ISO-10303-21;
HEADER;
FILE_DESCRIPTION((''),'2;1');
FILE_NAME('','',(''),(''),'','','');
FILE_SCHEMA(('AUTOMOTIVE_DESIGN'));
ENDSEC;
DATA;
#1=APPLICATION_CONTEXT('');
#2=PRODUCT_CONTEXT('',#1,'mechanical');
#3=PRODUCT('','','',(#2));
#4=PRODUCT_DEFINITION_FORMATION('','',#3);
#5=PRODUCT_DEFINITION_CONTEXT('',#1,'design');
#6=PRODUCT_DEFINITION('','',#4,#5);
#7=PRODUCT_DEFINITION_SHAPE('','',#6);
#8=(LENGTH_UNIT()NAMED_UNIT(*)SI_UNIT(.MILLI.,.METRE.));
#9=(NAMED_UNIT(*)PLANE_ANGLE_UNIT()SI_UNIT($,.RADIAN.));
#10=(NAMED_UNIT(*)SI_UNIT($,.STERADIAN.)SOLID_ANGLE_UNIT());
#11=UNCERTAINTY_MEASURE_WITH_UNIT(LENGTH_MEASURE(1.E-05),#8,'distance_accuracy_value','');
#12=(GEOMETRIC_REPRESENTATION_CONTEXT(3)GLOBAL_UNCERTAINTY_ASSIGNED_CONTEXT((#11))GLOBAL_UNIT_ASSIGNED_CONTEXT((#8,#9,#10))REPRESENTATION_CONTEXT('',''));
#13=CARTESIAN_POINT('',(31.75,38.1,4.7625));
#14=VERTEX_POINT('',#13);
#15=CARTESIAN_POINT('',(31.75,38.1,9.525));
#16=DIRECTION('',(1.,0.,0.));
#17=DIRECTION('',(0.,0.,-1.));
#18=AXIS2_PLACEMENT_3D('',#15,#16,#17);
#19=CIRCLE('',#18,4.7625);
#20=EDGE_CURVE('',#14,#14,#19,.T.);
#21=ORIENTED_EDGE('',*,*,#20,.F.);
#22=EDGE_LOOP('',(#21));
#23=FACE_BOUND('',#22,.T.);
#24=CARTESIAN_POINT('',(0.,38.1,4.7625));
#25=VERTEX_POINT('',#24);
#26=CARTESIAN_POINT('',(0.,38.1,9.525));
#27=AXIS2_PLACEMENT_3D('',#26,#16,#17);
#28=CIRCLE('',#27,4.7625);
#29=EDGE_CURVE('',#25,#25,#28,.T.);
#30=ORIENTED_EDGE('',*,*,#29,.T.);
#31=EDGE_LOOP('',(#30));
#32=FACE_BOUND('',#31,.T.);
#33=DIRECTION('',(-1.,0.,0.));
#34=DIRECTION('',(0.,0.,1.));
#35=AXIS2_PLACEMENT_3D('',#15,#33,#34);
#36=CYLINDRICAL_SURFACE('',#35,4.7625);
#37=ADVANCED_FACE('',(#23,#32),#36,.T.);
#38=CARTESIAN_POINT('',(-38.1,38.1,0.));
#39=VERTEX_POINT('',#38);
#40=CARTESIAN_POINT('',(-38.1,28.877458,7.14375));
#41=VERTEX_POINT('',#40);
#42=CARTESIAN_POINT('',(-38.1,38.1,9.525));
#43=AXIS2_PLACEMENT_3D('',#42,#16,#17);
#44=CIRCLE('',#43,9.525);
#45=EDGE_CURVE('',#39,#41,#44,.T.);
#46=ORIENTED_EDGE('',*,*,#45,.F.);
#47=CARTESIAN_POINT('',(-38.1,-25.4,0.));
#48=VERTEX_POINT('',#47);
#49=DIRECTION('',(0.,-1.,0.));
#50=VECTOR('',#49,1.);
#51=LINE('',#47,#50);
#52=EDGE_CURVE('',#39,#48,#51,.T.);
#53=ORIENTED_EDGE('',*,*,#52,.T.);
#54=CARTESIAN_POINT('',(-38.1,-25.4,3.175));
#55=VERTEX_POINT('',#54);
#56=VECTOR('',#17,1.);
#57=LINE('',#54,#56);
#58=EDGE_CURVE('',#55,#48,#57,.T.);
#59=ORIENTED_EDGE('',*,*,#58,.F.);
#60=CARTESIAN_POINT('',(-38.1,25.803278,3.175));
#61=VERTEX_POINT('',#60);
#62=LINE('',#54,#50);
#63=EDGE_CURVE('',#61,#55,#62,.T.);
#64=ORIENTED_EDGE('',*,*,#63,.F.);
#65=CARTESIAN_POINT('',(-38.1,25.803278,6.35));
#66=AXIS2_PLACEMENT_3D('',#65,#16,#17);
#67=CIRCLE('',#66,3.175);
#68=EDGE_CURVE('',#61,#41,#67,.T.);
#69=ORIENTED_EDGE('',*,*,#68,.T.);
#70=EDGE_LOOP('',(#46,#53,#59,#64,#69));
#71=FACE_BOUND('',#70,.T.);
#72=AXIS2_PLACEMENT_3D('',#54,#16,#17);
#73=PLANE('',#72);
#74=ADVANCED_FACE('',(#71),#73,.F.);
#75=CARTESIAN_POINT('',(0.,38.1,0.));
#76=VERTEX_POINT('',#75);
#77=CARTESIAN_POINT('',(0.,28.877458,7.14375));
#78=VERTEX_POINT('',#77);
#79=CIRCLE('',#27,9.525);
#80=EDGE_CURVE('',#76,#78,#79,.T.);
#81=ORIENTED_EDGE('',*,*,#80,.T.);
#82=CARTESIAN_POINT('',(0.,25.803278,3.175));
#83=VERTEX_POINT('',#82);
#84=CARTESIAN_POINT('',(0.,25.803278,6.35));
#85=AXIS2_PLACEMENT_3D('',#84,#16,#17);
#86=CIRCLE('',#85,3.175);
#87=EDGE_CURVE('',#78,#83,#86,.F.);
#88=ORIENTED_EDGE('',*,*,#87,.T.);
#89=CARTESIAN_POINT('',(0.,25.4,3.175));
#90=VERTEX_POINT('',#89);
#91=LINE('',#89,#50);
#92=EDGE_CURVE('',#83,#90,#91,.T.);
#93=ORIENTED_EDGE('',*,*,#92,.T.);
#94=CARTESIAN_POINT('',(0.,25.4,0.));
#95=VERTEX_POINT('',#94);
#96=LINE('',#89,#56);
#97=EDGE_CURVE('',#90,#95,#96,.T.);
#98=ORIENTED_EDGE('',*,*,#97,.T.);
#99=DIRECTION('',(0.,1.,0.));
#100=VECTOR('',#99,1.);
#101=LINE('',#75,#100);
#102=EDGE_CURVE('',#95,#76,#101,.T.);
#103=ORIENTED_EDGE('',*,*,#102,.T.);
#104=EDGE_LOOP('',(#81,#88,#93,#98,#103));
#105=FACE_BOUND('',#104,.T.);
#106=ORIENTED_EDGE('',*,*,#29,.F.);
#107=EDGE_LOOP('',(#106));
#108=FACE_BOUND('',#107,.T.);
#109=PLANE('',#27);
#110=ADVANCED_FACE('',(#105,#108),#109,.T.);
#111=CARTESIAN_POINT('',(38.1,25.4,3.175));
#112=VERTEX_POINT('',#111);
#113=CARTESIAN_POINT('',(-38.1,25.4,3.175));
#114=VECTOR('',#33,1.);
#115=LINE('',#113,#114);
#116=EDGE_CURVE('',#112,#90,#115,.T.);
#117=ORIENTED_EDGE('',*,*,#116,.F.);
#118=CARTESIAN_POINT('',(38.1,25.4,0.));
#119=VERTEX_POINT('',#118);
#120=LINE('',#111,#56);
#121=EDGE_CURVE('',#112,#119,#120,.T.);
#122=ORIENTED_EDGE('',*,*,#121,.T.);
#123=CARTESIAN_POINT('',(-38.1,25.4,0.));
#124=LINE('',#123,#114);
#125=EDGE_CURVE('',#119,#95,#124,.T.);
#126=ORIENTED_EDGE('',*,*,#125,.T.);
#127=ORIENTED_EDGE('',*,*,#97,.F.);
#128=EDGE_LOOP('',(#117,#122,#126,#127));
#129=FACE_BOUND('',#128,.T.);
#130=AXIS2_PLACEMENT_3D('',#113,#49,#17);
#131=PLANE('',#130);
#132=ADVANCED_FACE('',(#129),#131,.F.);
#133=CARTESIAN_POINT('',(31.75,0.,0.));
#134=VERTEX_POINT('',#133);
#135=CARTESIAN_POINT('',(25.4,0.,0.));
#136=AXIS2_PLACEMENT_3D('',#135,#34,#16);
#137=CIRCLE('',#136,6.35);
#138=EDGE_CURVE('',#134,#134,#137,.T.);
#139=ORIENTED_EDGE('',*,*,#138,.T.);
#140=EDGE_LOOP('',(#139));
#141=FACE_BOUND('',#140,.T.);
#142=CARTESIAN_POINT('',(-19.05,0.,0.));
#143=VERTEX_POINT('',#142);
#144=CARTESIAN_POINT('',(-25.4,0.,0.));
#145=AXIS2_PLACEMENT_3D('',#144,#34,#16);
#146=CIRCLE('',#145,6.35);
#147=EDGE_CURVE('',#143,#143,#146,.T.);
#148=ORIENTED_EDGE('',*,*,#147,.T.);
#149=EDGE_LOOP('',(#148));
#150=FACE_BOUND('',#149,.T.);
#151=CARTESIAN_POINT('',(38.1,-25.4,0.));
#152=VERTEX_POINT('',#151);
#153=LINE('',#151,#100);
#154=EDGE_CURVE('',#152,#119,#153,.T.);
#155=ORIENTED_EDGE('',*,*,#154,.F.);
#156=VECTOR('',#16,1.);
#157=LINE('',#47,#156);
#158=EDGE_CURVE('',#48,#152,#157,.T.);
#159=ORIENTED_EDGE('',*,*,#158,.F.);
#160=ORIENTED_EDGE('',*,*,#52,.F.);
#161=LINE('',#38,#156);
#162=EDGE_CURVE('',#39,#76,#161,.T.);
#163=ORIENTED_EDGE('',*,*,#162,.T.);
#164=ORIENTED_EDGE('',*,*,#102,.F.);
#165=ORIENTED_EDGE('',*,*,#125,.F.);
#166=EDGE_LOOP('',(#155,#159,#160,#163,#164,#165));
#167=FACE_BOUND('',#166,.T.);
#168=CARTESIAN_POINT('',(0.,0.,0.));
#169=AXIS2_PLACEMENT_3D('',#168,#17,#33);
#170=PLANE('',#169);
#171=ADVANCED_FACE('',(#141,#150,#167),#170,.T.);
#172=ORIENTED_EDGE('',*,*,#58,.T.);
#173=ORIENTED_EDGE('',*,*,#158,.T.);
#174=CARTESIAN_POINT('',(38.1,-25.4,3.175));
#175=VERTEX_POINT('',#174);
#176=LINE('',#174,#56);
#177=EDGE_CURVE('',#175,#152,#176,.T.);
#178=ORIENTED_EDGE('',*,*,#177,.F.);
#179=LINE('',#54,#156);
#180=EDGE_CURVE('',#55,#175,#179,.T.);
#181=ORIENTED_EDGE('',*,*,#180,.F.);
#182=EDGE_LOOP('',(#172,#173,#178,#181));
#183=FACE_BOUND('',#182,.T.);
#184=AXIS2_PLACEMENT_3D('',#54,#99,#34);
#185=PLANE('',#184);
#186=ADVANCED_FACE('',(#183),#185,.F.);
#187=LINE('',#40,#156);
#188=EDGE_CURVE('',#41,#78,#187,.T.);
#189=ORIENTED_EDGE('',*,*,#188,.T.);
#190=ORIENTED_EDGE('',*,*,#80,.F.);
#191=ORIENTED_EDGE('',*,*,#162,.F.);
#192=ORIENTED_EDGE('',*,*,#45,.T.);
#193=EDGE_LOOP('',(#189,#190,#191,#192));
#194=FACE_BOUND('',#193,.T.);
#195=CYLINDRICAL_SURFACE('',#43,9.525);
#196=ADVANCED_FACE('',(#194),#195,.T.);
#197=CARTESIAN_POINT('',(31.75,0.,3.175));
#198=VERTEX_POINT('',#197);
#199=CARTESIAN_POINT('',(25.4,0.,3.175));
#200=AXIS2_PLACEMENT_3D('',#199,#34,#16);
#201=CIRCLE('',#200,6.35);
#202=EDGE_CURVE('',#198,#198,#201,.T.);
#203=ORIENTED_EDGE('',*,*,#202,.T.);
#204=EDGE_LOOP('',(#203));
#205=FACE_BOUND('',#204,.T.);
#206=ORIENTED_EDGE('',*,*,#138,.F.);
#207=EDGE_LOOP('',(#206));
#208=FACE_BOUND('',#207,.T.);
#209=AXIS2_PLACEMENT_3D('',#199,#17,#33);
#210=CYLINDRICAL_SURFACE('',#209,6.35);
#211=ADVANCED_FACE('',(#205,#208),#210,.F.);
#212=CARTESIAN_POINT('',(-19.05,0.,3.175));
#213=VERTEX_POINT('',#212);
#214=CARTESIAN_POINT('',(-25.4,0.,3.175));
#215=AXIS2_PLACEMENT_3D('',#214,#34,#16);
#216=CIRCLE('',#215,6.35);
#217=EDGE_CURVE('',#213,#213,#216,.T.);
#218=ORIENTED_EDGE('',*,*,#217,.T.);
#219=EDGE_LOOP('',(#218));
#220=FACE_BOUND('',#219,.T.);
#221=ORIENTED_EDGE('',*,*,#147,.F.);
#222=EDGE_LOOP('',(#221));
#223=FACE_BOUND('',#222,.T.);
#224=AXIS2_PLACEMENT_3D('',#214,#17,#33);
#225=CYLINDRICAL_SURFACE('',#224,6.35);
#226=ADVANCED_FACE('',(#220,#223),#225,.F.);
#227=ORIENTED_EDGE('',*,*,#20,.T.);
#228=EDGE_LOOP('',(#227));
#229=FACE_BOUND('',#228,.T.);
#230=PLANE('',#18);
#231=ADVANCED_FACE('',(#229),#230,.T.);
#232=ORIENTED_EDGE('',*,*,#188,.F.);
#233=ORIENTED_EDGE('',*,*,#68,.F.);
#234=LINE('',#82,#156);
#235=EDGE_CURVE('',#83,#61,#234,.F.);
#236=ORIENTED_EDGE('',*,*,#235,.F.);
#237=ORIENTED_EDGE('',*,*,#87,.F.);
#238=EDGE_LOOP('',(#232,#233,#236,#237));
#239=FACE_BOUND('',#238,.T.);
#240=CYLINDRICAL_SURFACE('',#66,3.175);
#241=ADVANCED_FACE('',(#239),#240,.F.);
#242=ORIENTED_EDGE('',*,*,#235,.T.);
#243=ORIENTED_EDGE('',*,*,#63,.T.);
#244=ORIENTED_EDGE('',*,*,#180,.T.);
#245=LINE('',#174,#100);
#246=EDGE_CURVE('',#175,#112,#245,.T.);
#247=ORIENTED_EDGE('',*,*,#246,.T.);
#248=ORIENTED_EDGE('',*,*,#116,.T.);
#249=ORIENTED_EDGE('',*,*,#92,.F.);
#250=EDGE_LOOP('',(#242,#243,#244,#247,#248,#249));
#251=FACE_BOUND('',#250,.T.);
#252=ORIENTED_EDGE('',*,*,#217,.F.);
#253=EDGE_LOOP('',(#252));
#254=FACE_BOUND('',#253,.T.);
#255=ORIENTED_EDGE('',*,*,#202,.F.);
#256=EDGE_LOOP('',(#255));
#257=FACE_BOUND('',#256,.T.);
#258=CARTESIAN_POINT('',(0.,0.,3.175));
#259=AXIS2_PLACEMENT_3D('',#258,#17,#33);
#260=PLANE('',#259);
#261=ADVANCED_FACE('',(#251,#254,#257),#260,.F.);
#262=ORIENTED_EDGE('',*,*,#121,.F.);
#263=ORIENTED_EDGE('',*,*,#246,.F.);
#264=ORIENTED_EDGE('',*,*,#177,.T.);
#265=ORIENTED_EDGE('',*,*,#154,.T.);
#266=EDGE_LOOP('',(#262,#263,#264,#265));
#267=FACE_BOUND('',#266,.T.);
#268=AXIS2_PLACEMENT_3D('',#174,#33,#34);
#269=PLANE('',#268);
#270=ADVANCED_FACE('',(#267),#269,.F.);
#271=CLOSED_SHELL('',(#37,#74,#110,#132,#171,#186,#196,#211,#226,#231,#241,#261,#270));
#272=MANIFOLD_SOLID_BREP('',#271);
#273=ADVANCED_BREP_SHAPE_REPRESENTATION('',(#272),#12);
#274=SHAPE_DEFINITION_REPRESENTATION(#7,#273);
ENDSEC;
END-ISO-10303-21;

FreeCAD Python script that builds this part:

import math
import FreeCAD as App
import Part
import Sketcher
from FreeCAD import Vector
Q = App.Units.Quantity


def edges_at(feature, points):
    """Names of the edges that pass closest to the given points."""
    edges = feature.Shape.Edges
    near = lambda p: min(range(len(edges)), key=lambda i: edges[i].distToShape(Part.Vertex(*p))[0])
    return sorted({f"Edge{near(p) + 1}" for p in points})

doc = App.newDocument("Part")
params = doc.addObject("Spreadsheet::Sheet", "Params")
for row, (alias, value) in enumerate([
    ("sketch1_diameter", "0.5 in"),
    ("sketch1_width", "3 in"),
    ("sketch1_height", "2 in"),
    ("pad1_length", "0.125 in"),
    ("sketch2_width", "0.5 in"),
    ("sketch2_radius", "0.375 in"),
    ("sketch2_height", "0.125 in"),
    ("pad2_length", "1.5 in"),
    ("fillet_radius", "0.125 in"),
    ("sketch3_diameter", "0.375 in"),
    ("pad3_length", "1.25 in"),
], start=1):
    params.set(f"A{row}", alias)
    params.set(f"B{row}", "=" + value)
    params.setAlias(f"B{row}", alias)

body = doc.addObject("PartDesign::Body", "Body")

sketch1 = doc.addObject("Sketcher::SketchObject", "Sketch")
body.addObject(sketch1)
sketch1.AttachmentSupport = (doc.XY_Plane, [""])
sketch1.MapMode = "FlatFace"
sketch1.addGeometry(Part.LineSegment(Vector(-38, 25, 0), Vector(-38, -25, 0)), False)
sketch1.addGeometry(Part.LineSegment(Vector(-38, -25, 0), Vector(38, -25, 0)), False)
sketch1.addGeometry(Part.LineSegment(Vector(38, -25, 0), Vector(38, 25, 0)), False)
sketch1.addGeometry(Part.LineSegment(Vector(38, 25, 0), Vector(-38, 25, 0)), False)
sketch1.addGeometry(Part.Circle(Vector(-25, 0, 0), Vector(0, 0, 1), 6), False)
sketch1.addGeometry(Part.Circle(Vector(25, 0, 0), Vector(0, 0, 1), 6), False)
sketch1.addConstraint(Sketcher.Constraint("Coincident", 0, 2, 1, 1))
sketch1.addConstraint(Sketcher.Constraint("Coincident", 1, 2, 2, 1))
sketch1.addConstraint(Sketcher.Constraint("Coincident", 2, 2, 3, 1))
sketch1.addConstraint(Sketcher.Constraint("Coincident", 3, 2, 0, 1))
sketch1.addConstraint(Sketcher.Constraint("Vertical", 0))
sketch1.addConstraint(Sketcher.Constraint("Horizontal", 1))
sketch1.addConstraint(Sketcher.Constraint("Vertical", 2))
sketch1.addConstraint(Sketcher.Constraint("Horizontal", 3))
sketch1.addConstraint(Sketcher.Constraint("Equal", 4, 5))
sketch1.addConstraint(Sketcher.Constraint("Symmetric", 4, 3, 5, 3, -1, 1))
sketch1.addConstraint(Sketcher.Constraint("Symmetric", 0, 2, 2, 2, -1, 1))
sketch1.addConstraint(Sketcher.Constraint("PointOnObject", 4, 3, -1))
sketch1.addConstraint(Sketcher.Constraint("Diameter", 4, Q("0.5 in")))
sketch1.addConstraint(Sketcher.Constraint("DistanceX", 1, 1, 1, 2, Q("3 in")))
sketch1.addConstraint(Sketcher.Constraint("DistanceY", 0, 2, 0, 1, Q("2 in")))
sketch1.addConstraint(Sketcher.Constraint("DistanceX", 4, 3, -1, 1, Q("1 in")))
sketch1.setExpression("Constraints[12]", "Params.sketch1_diameter")
sketch1.setExpression("Constraints[13]", "Params.sketch1_width")
sketch1.setExpression("Constraints[14]", "Params.sketch1_height")
pad1 = doc.addObject("PartDesign::Pad", "Pad")
body.addObject(pad1)
pad1.Profile = sketch1
pad1.setExpression("Length", "Params.pad1_length")

sketch2 = doc.addObject("Sketcher::SketchObject", "Sketch001")
body.addObject(sketch2)
sketch2.AttachmentSupport = (doc.YZ_Plane, [""])
sketch2.MapMode = "FlatFace"
sketch2.addGeometry(Part.LineSegment(Vector(25.4, 0, 0), Vector(38.1, 0, 0)), False)
sketch2.addGeometry(Part.ArcOfCircle(Part.Circle(Vector(38.1, 9.5, 0), Vector(0, 0, 1), 9.5), math.radians(-90), math.radians(222)), False)
sketch2.addGeometry(Part.LineSegment(Vector(31, 3.2, 0), Vector(25.4, 3.2, 0)), False)
sketch2.addGeometry(Part.LineSegment(Vector(25.4, 3.2, 0), Vector(25.4, 0, 0)), False)
sketch2.addConstraint(Sketcher.Constraint("Tangent", 0, 2, 1, 1))
sketch2.addConstraint(Sketcher.Constraint("Coincident", 1, 2, 2, 1))
sketch2.addConstraint(Sketcher.Constraint("Coincident", 2, 2, 3, 1))
sketch2.addConstraint(Sketcher.Constraint("Coincident", 3, 2, 0, 1))
sketch2.addConstraint(Sketcher.Constraint("Horizontal", 0))
sketch2.addConstraint(Sketcher.Constraint("Horizontal", 2))
sketch2.addConstraint(Sketcher.Constraint("Vertical", 3))
sketch2.addConstraint(Sketcher.Constraint("PointOnObject", 0, 2, -1))
sketch2.addConstraint(Sketcher.Constraint("DistanceX", 0, 1, 0, 2, Q("0.5 in")))
sketch2.addConstraint(Sketcher.Constraint("DistanceX", -1, 1, 2, 2, Q("1 in")))
sketch2.addConstraint(Sketcher.Constraint("Radius", 1, Q("0.375 in")))
sketch2.addConstraint(Sketcher.Constraint("DistanceY", 3, 2, 3, 1, Q("0.125 in")))
sketch2.setExpression("Constraints[8]", "Params.sketch2_width")
sketch2.setExpression("Constraints[10]", "Params.sketch2_radius")
sketch2.setExpression("Constraints[11]", "Params.sketch2_height")
pad2 = doc.addObject("PartDesign::Pad", "Pad001")
body.addObject(pad2)
pad2.Profile = sketch2
pad2.setExpression("Length", "Params.pad2_length")
pad2.Reversed = True
doc.recompute()

fillet = doc.addObject("PartDesign::Fillet", "Fillet")
body.addObject(fillet)
fillet.Base = (pad2, edges_at(pad2, [(-19.05, 31, 3.175)]))
fillet.setExpression("Radius", "Params.fillet_radius")

sketch3 = doc.addObject("Sketcher::SketchObject", "Sketch002")
body.addObject(sketch3)
sketch3.AttachmentSupport = (doc.YZ_Plane, [""])
sketch3.MapMode = "FlatFace"
sketch3.addGeometry(Part.Circle(Vector(38.1, 9.5, 0), Vector(0, 0, 1), 4.8), False)
sketch3.addConstraint(Sketcher.Constraint("Diameter", 0, Q("0.375 in")))
sketch3.addConstraint(Sketcher.Constraint("DistanceX", -1, 1, 0, 3, Q("1.5 in")))
sketch3.addConstraint(Sketcher.Constraint("DistanceY", -1, 1, 0, 3, Q("0.375 in")))
sketch3.setExpression("Constraints[0]", "Params.sketch3_diameter")
pad3 = doc.addObject("PartDesign::Pad", "Pad002")
body.addObject(pad3)
pad3.Profile = sketch3
pad3.setExpression("Length", "Params.pad3_length")

doc.recompute()
